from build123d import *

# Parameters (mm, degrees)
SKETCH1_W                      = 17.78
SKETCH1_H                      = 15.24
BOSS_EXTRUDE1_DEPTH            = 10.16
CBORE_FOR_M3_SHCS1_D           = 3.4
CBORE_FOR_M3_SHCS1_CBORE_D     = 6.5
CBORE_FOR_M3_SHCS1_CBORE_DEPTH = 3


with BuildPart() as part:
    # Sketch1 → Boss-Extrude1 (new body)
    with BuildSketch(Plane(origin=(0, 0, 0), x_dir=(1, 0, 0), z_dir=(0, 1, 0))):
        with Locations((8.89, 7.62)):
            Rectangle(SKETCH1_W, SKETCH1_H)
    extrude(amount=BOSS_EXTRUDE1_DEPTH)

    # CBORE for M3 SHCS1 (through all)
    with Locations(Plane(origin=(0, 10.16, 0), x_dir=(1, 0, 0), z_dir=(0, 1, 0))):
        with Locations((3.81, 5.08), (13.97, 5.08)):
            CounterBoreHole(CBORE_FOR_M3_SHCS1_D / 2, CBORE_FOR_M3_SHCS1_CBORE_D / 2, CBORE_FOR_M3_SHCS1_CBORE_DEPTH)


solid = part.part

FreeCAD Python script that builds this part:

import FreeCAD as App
import Part
import Sketcher
Q = App.Units.Quantity


def add_polygon(sketch, points):
    """Adds a closed chain of lines whose ends are joined by coincident constraints."""
    first, n = sketch.GeometryCount, len(points)
    for a, b in zip(points, points[1:] + points[:1]):
        sketch.addGeometry(Part.LineSegment(App.Vector(*a, 0), App.Vector(*b, 0)), False)
    for i in range(n):
        sketch.addConstraint(Sketcher.Constraint("Coincident", first + i, 2, first + (i + 1) % n, 1))

doc = App.newDocument("Part")
body = doc.addObject("PartDesign::Body", "Body")

sketch1 = doc.addObject("Sketcher::SketchObject", "Sketch")
body.addObject(sketch1)
sketch1.AttachmentSupport = (doc.XZ_Plane, [""])
sketch1.MapMode = "FlatFace"
add_polygon(sketch1, [(0, -15.24), (0, 0), (17.78, 0), (17.78, -15.24)])
sketch1.addConstraint([
    Sketcher.Constraint("Vertical", 0),
    Sketcher.Constraint("Horizontal", 1),
    Sketcher.Constraint("Vertical", 2),
    Sketcher.Constraint("Horizontal", 3),
    Sketcher.Constraint("Coincident", 0, 2, -1, 1),
    Sketcher.Constraint("DistanceX", 1, 1, 1, 2, Q("0.7 in")),
    Sketcher.Constraint("DistanceY", 0, 1, 0, 2, Q("0.6 in")),
])
pad1 = doc.addObject("PartDesign::Pad", "Pad")
body.addObject(pad1)
pad1.Profile = sketch1
pad1.Length = Q("0.4 in")
pad1.Reversed = True

sketch2 = doc.addObject("Sketcher::SketchObject", "Sketch001")
body.addObject(sketch2)
sketch2.AttachmentSupport = (doc.XZ_Plane, [""])
sketch2.MapMode = "FlatFace"
sketch2.AttachmentOffset = App.Placement(App.Vector(0, 0, -0.4 * 25.4), App.Rotation())
sketch2.addGeometry([
    Part.Circle(App.Vector(3.81, -5.08, 0), App.Vector(0, 0, 1), 1.7),
    Part.Circle(App.Vector(13.97, -5.08, 0), App.Vector(0, 0, 1), 1.7),
], False)
sketch2.addConstraint([
    Sketcher.Constraint("Equal", 0, 1),
    Sketcher.Constraint("Horizontal", 0, 3, 1, 3),
    Sketcher.Constraint("DistanceY", 0, 3, -1, 1, Q("0.2 in")),
    Sketcher.Constraint("DistanceX", 0, 3, 1, 3, Q("0.4 in")),
    Sketcher.Constraint("Diameter", 0, 3.4),
    Sketcher.Constraint("DistanceX", -1, 1, 0, 3, Q("0.15 in")),
])
doc.recompute()
hole = doc.addObject("PartDesign::Hole", "Hole")
body.addObject(hole)
hole.Profile = sketch2
hole.ThreadType = "None"
hole.Diameter = 3.4
hole.DepthType = "ThroughAll"
hole.HoleCutType = "Counterbore"
hole.HoleCutDiameter = 6.5
hole.HoleCutDepth = 3
hole.Reversed = True

doc.recompute()
